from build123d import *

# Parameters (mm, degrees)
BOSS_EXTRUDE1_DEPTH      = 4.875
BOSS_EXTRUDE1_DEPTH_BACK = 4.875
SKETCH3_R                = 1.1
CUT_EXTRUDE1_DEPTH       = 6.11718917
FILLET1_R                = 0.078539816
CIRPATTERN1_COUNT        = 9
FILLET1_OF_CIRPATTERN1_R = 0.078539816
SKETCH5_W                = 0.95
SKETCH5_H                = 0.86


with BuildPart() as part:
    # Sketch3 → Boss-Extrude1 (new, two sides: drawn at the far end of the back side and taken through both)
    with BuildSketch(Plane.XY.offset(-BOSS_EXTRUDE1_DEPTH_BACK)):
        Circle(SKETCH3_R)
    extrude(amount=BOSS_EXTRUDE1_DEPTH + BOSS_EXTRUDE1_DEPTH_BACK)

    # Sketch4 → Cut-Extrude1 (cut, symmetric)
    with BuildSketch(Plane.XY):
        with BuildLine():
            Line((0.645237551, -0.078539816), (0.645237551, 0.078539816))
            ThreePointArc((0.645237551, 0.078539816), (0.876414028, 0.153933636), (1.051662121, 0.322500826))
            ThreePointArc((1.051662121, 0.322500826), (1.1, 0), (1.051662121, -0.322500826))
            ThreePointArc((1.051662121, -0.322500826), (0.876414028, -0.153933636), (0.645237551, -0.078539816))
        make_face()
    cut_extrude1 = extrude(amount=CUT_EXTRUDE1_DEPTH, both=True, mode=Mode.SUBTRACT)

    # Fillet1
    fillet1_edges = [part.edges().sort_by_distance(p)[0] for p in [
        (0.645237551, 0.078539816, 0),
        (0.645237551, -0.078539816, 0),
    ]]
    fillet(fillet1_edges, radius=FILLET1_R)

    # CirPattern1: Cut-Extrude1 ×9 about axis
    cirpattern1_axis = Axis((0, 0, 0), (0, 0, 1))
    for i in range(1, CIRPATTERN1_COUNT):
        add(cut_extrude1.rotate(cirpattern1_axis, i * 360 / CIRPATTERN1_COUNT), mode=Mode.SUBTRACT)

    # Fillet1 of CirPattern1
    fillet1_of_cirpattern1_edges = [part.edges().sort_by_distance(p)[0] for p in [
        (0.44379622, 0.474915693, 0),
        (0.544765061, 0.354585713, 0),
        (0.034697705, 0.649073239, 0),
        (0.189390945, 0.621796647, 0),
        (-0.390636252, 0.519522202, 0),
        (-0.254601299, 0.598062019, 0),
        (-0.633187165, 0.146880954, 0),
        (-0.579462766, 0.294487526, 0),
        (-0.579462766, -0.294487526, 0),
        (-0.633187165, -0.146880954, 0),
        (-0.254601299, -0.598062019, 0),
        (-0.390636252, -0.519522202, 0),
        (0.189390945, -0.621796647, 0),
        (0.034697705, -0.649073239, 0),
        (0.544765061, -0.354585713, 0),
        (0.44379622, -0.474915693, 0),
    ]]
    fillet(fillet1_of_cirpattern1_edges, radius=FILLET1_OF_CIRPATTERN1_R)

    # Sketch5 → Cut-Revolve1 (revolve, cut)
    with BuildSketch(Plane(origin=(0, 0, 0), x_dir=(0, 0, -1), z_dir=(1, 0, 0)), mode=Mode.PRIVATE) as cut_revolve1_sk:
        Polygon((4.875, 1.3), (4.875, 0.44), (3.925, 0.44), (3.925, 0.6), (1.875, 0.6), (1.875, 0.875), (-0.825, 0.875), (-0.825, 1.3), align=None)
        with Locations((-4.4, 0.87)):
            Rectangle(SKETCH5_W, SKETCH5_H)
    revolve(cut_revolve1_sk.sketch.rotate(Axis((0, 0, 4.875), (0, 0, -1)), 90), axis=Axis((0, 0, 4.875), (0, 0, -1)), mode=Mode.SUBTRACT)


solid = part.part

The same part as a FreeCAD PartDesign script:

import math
import FreeCAD as App
import Part
import Sketcher


def edges_at(feature, points):
    """Names of the edges that pass closest to the given points."""
    edges = feature.Shape.Edges
    near = lambda p: min(range(len(edges)), key=lambda i: edges[i].distToShape(Part.Vertex(*p))[0])
    return sorted({f"Edge{near(p) + 1}" for p in points})

doc = App.newDocument("Part")
body = doc.addObject("PartDesign::Body", "Body")

# Sketch on XY plane
sketch1 = doc.addObject("Sketcher::SketchObject", "Sketch")
body.addObject(sketch1)
sketch1.AttachmentSupport = (doc.XY_Plane, [""])
sketch1.MapMode = "FlatFace"
sketch1.addGeometry(Part.Circle(App.Vector(0, 0, 0), App.Vector(0, 0, 1), 1.1), False)
sketch1.addConstraint(Sketcher.Constraint("Coincident", 0, 3, -1, 1))
sketch1.addConstraint(Sketcher.Constraint("Diameter", 0, 2.2))
pad1 = doc.addObject("PartDesign::Pad", "Pad")
body.addObject(pad1)
pad1.Profile = sketch1
pad1.Type = "TwoLengths"
pad1.Length = 4.875
pad1.Length2 = 4.875

# Sketch on XY plane
sketch2 = doc.addObject("Sketcher::SketchObject", "Sketch001")
body.addObject(sketch2)
sketch2.AttachmentSupport = (doc.XY_Plane, [""])
sketch2.MapMode = "FlatFace"
sketch2.addGeometry(Part.LineSegment(App.Vector(0.65, 0.08, 0), App.Vector(0.65, -0.08, 0)), False)
sketch2.addGeometry(Part.ArcOfCircle(Part.Circle(App.Vector(0.6, -0.62, 0), App.Vector(0, 0, 1), 0.54), math.radians(33), math.radians(85)), False)
sketch2.addGeometry(Part.ArcOfCircle(Part.Circle(App.Vector(0, 0, 0), App.Vector(0, 0, 1), 1.1), math.radians(-17), math.radians(17)), False)
sketch2.addGeometry(Part.ArcOfCircle(Part.Circle(App.Vector(0.6, 0.62, 0), App.Vector(0, 0, 1), 0.54), math.radians(-85), math.radians(-33)), False)
sketch2.addConstraint(Sketcher.Constraint("Coincident", 0, 2, 1, 2))
sketch2.addConstraint(Sketcher.Constraint("Coincident", 1, 1, 2, 1))
sketch2.addConstraint(Sketcher.Constraint("Coincident", 2, 2, 3, 2))
sketch2.addConstraint(Sketcher.Constraint("Coincident", 3, 1, 0, 1))
sketch2.addConstraint(Sketcher.Constraint("Vertical", 0))
sketch2.addConstraint(Sketcher.Constraint("Coincident", 2, 3, -1, 1))
sketch2.addConstraint(Sketcher.Constraint("Equal", 1, 3))
sketch2.addConstraint(Sketcher.Constraint("Symmetric", 1, 3, 3, 3, -1))
sketch2.addConstraint(Sketcher.Constraint("Radius", 2, 1.1))
sketch2.addConstraint(Sketcher.Constraint("Radius", 1, 0.544093))
sketch2.addConstraint(Sketcher.Constraint("DistanceY", 1, 1, 2, 2, 0.645002))
sketch2.addConstraint(Sketcher.Constraint("DistanceY", 0, 2, 0, 1, 0.15708))
sketch2.addConstraint(Sketcher.Constraint("DistanceX", -1, 1, 1, 3, 0.596391))
pocket1 = doc.addObject("PartDesign::Pocket", "Pocket")
body.addObject(pocket1)
pocket1.Profile = sketch2
pocket1.Length = 12.234378
pocket1.Midplane = True
doc.recompute()

fillet = doc.addObject("PartDesign::Fillet", "Fillet")
body.addObject(fillet)
fillet.Base = (pocket1, edges_at(pocket1, [(0.645, 0.079, 0), (0.645, -0.079, 0)]))
fillet.Radius = 0.07854
doc.recompute()

polarpattern = doc.addObject("PartDesign::PolarPattern", "PolarPattern")
body.addObject(polarpattern)
polarpattern.Originals = [pocket1]
polarpattern.Axis = (doc.Z_Axis, [""])
polarpattern.Angle = 360
polarpattern.Occurrences = 9
body.Tip = polarpattern
doc.recompute()

fillet2 = doc.addObject("PartDesign::Fillet", "Fillet001")
body.addObject(fillet2)
fillet2.Base = (polarpattern, edges_at(polarpattern, [
    (0.444, 0.475, 0),
    (0.545, 0.355, 0),
    (0.035, 0.649, 0),
    (0.189, 0.622, 0),
    (-0.391, 0.52, 0),
    (-0.255, 0.598, 0),
    (-0.633, 0.147, 0),
    (-0.579, 0.294, 0),
    (-0.579, -0.294, 0),
    (-0.633, -0.147, 0),
    (-0.255, -0.598, 0),
    (-0.391, -0.52, 0),
    (0.189, -0.622, 0),
    (0.035, -0.649, 0),
    (0.545, -0.355, 0),
    (0.444, -0.475, 0),
]))
fillet2.Radius = 0.07854

# Sketch on YZ plane
sketch3 = doc.addObject("Sketcher::SketchObject", "Sketch002")
body.addObject(sketch3)
sketch3.AttachmentSupport = (doc.YZ_Plane, [""])
sketch3.MapMode = "FlatFace"
sketch3.addGeometry(Part.LineSegment(App.Vector(0.44, -4.88, 0), App.Vector(1.3, -4.88, 0)), False)
sketch3.addGeometry(Part.LineSegment(App.Vector(1.3, -4.88, 0), App.Vector(1.3, 0.82, 0)), False)
sketch3.addGeometry(Part.LineSegment(App.Vector(1.3, 0.82, 0), App.Vector(0.88, 0.82, 0)), False)
sketch3.addGeometry(Part.LineSegment(App.Vector(0.88, 0.82, 0), App.Vector(0.88, -1.88, 0)), False)
sketch3.addGeometry(Part.LineSegment(App.Vector(0.88, -1.88, 0), App.Vector(0.6, -1.88, 0)), False)
sketch3.addGeometry(Part.LineSegment(App.Vector(0.6, -1.88, 0), App.Vector(0.6, -3.92, 0)), False)
sketch3.addGeometry(Part.LineSegment(App.Vector(0.6, -3.92, 0), App.Vector(0.44, -3.92, 0)), False)
sketch3.addGeometry(Part.LineSegment(App.Vector(0.44, -3.92, 0), App.Vector(0.44, -4.88, 0)), False)
sketch3.addGeometry(Part.LineSegment(App.Vector(1.3, 4.88, 0), App.Vector(0.44, 4.88, 0)), False)
sketch3.addGeometry(Part.LineSegment(App.Vector(0.44, 4.88, 0), App.Vector(0.44, 3.92, 0)), False)
sketch3.addGeometry(Part.LineSegment(App.Vector(0.44, 3.92, 0), App.Vector(1.3, 3.92, 0)), False)
sketch3.addGeometry(Part.LineSegment(App.Vector(1.3, 3.92, 0), App.Vector(1.3, 4.88, 0)), False)
sketch3.addConstraint(Sketcher.Constraint("Coincident", 0, 2, 1, 1))
sketch3.addConstraint(Sketcher.Constraint("Coincident", 1, 2, 2, 1))
sketch3.addConstraint(Sketcher.Constraint("Coincident", 2, 2, 3, 1))
sketch3.addConstraint(Sketcher.Constraint("Coincident", 3, 2, 4, 1))
sketch3.addConstraint(Sketcher.Constraint("Coincident", 4, 2, 5, 1))
sketch3.addConstraint(Sketcher.Constraint("Coincident", 5, 2, 6, 1))
sketch3.addConstraint(Sketcher.Constraint("Coincident", 6, 2, 7, 1))
sketch3.addConstraint(Sketcher.Constraint("Coincident", 7, 2, 0, 1))
sketch3.addConstraint(Sketcher.Constraint("Coincident", 8, 2, 9, 1))
sketch3.addConstraint(Sketcher.Constraint("Coincident", 9, 2, 10, 1))
sketch3.addConstraint(Sketcher.Constraint("Coincident", 10, 2, 11, 1))
sketch3.addConstraint(Sketcher.Constraint("Coincident", 11, 2, 8, 1))
sketch3.addConstraint(Sketcher.Constraint("Horizontal", 0))
sketch3.addConstraint(Sketcher.Constraint("Vertical", 1))
sketch3.addConstraint(Sketcher.Constraint("Horizontal", 2))
sketch3.addConstraint(Sketcher.Constraint("Vertical", 3))
sketch3.addConstraint(Sketcher.Constraint("Horizontal", 4))
sketch3.addConstraint(Sketcher.Constraint("Vertical", 5))
sketch3.addConstraint(Sketcher.Constraint("Horizontal", 6))
sketch3.addConstraint(Sketcher.Constraint("Vertical", 7))
sketch3.addConstraint(Sketcher.Constraint("Horizontal", 8))
sketch3.addConstraint(Sketcher.Constraint("Vertical", 9))
sketch3.addConstraint(Sketcher.Constraint("Horizontal", 10))
sketch3.addConstraint(Sketcher.Constraint("Vertical", 11))
sketch3.addConstraint(Sketcher.Constraint("Symmetric", 7, 2, 8, 2, -1))
sketch3.addConstraint(Sketcher.Constraint("Vertical", 1, 2, 10, 2))
sketch3.addConstraint(Sketcher.Constraint("Equal", 7, 9))
sketch3.addConstraint(Sketcher.Constraint("DistanceY", 1, 1, 1, 2, 5.7))
sketch3.addConstraint(Sketcher.Constraint("DistanceY", 3, 2, 3, 1, 2.7))
sketch3.addConstraint(Sketcher.Constraint("DistanceX", 0, 1, 0, 2, 0.86))
sketch3.addConstraint(Sketcher.Constraint("DistanceX", 6, 2, 6, 1, 0.16))
sketch3.addConstraint(Sketcher.Constraint("DistanceY", 5, 2, 5, 1, 2.05))
sketch3.addConstraint(Sketcher.Constraint("DistanceX", -1, 1, 0, 2, 1.3))
sketch3.addConstraint(Sketcher.Constraint("DistanceY", 6, 2, 8, 2, 8.8))
sketch3.addConstraint(Sketcher.Constraint("DistanceX", 2, 2, 2, 1, 0.425))
groove = doc.addObject("PartDesign::Groove", "Groove")
body.addObject(groove)
groove.Profile = sketch3
groove.ReferenceAxis = (sketch3, ["V_Axis"])
groove.Angle = 360

doc.recompute()
